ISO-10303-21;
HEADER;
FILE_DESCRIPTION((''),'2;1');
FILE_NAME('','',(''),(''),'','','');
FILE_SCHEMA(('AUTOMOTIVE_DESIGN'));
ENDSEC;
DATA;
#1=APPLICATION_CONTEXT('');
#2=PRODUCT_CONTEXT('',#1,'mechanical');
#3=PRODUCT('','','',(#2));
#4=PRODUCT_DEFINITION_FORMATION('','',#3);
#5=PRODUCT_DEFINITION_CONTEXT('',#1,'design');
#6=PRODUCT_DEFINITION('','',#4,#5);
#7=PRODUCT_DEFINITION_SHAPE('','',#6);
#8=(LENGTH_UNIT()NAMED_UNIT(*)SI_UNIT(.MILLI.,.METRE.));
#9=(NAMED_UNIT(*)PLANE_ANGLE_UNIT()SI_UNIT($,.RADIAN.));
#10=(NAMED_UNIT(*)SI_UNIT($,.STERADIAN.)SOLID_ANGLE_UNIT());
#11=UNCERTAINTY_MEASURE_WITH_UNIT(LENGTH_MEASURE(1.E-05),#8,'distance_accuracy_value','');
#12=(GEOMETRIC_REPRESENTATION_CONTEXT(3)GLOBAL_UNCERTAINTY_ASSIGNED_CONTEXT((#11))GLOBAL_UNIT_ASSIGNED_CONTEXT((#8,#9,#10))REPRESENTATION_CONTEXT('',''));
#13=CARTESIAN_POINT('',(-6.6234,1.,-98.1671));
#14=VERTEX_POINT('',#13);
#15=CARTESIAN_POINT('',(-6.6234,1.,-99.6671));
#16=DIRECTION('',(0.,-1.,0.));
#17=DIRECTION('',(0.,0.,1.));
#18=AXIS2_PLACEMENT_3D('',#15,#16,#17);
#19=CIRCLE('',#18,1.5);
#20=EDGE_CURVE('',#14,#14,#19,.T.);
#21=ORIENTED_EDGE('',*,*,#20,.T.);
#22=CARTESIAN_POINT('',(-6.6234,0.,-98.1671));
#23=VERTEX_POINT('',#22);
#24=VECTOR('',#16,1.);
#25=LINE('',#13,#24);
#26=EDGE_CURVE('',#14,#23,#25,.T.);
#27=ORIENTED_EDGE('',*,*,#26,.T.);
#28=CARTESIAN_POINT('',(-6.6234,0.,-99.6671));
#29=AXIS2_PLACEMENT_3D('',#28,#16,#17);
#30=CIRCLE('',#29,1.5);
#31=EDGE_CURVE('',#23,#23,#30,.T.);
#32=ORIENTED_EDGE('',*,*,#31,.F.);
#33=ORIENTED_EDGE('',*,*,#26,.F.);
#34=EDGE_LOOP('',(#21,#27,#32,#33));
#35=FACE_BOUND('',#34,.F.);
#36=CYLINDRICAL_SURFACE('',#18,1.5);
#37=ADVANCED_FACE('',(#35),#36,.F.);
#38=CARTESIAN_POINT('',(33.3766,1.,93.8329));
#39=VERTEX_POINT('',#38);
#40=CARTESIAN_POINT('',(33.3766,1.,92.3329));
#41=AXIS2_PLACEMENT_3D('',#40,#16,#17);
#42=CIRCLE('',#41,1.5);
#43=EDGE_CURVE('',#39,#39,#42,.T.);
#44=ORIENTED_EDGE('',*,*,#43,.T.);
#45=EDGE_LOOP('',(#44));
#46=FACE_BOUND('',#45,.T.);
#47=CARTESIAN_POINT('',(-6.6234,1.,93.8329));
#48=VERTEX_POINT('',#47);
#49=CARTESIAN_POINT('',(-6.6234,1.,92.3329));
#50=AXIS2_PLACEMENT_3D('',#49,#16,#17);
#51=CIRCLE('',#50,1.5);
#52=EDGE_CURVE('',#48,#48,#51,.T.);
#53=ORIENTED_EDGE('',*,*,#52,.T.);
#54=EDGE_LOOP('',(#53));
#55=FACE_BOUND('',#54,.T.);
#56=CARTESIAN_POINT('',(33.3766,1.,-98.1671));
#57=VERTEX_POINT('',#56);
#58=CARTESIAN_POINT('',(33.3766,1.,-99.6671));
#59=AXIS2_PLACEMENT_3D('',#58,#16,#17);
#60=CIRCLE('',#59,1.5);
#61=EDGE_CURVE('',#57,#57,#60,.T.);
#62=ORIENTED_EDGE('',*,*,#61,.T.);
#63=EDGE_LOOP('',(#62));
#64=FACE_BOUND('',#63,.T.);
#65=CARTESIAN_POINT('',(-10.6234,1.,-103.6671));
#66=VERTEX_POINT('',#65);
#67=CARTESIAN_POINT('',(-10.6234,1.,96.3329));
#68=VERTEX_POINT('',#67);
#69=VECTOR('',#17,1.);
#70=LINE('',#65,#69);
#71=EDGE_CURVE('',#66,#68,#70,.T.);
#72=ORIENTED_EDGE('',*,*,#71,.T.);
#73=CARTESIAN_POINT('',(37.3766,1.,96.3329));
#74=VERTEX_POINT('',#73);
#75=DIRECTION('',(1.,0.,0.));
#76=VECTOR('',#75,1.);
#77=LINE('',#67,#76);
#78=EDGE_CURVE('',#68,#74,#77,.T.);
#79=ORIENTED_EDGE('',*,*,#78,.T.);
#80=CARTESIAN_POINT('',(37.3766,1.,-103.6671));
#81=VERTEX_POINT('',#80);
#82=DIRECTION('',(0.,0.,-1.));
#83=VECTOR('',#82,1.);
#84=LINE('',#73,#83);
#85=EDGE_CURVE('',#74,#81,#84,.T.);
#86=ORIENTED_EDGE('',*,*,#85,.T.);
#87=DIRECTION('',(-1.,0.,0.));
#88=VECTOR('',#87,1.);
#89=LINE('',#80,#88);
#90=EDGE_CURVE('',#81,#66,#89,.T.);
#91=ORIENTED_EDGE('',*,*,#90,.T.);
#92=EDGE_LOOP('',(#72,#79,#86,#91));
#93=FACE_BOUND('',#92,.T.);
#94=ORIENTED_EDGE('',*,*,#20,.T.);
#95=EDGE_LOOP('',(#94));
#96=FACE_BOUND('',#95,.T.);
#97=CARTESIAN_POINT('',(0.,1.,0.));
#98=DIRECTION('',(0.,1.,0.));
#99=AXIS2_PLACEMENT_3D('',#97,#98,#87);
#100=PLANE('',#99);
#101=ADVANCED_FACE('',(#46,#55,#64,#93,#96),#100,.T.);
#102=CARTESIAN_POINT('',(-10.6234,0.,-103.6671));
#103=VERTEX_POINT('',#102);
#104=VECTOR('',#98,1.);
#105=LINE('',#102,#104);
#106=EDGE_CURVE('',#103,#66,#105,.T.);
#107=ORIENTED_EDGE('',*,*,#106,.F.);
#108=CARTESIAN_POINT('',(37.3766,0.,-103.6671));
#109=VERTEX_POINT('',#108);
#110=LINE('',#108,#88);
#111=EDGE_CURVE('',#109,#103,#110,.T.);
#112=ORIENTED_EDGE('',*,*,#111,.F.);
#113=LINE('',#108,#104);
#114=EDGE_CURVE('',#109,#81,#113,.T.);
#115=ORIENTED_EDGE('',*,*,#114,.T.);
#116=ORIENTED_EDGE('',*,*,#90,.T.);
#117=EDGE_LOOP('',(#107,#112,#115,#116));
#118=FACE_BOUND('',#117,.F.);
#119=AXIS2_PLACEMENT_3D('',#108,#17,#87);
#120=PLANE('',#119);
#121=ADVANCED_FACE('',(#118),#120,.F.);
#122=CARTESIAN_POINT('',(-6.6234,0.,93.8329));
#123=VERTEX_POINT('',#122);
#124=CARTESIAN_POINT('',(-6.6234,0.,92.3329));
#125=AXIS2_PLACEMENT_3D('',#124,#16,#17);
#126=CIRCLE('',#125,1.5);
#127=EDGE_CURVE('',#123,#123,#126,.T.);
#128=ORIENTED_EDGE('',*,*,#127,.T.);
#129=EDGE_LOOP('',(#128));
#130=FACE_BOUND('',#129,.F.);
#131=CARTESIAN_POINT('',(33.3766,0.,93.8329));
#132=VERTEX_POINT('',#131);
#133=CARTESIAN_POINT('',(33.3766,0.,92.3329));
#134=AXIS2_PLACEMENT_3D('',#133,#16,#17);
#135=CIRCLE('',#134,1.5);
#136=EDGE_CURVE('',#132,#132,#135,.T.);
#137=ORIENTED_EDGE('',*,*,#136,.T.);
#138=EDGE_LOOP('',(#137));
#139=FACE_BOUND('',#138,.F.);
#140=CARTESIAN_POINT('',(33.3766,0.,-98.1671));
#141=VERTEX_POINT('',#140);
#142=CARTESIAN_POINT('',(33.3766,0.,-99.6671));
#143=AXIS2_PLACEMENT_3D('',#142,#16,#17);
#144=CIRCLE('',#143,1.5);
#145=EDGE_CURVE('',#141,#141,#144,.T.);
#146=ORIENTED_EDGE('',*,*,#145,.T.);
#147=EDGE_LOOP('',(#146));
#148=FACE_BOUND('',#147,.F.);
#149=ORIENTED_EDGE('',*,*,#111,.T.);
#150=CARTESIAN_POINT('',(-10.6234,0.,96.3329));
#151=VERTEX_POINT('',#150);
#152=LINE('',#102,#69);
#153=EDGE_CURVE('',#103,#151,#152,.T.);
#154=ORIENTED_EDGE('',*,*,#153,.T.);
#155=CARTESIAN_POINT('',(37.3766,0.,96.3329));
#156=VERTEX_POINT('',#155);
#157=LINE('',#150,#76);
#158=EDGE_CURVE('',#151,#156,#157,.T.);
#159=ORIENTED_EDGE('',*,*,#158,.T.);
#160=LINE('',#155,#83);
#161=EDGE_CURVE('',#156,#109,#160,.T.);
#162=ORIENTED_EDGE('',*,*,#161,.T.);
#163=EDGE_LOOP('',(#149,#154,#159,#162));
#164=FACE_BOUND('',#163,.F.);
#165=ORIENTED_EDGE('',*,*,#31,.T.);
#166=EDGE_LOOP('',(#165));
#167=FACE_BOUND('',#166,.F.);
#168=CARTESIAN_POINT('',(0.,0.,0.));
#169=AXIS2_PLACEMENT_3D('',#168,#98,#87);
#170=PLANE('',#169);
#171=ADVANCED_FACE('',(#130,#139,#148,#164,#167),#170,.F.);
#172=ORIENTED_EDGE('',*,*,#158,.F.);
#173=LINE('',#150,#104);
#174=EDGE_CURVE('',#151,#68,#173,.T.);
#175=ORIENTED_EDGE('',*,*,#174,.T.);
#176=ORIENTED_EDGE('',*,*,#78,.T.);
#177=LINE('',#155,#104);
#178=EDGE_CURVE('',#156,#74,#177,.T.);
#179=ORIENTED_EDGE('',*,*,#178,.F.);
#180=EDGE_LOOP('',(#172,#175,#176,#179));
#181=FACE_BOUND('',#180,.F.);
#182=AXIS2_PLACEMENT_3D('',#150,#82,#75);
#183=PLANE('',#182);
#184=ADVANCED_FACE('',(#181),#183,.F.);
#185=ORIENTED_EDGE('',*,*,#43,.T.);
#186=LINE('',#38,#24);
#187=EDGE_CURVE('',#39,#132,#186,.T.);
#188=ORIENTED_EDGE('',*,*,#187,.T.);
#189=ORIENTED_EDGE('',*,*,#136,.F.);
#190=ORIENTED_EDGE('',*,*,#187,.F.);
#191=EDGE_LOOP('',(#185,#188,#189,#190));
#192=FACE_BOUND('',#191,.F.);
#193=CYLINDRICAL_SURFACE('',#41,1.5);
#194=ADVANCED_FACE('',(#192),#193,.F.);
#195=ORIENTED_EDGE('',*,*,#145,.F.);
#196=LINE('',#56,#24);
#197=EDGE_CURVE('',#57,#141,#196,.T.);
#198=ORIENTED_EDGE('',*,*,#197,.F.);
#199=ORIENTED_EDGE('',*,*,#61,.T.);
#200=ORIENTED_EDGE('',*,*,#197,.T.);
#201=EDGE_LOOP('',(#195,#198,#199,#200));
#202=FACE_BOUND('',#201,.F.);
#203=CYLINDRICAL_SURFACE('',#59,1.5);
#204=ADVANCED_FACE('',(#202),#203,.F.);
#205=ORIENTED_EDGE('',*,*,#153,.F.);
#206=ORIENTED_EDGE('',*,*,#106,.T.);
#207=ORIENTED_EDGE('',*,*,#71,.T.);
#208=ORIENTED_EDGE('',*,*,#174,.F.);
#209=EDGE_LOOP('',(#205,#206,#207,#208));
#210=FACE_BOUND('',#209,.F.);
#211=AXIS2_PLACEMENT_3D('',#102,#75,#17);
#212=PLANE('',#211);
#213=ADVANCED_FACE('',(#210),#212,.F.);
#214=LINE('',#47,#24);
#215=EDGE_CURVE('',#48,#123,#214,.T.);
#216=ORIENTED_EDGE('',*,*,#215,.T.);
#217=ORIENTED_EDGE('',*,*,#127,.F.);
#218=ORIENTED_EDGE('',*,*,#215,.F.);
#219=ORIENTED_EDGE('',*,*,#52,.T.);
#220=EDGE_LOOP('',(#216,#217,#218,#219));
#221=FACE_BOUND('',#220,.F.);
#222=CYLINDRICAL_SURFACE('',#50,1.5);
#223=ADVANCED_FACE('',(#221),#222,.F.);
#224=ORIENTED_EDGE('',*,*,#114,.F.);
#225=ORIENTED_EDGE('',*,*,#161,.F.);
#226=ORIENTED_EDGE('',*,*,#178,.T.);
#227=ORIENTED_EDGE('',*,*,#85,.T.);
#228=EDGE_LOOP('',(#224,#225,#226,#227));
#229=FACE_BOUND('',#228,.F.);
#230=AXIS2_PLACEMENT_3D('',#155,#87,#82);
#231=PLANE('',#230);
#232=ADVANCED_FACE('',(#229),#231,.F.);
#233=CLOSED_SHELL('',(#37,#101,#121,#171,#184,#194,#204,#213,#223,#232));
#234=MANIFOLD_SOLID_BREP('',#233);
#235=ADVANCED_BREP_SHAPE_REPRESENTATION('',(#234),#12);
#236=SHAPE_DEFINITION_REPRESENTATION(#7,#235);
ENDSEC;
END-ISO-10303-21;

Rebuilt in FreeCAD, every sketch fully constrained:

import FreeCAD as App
import Part
import Sketcher

V = App.Vector

doc = App.newDocument("Part")
body = doc.addObject("PartDesign::Body", "Body")

# Sketch on XZ plane
sketch1 = doc.addObject("Sketcher::SketchObject", "Sketch")
body.addObject(sketch1)
sketch1.AttachmentSupport = (doc.XZ_Plane, [""])
sketch1.MapMode = "FlatFace"
sketch1.addGeometry([
    Part.LineSegment(V(-10.6234, -103.6671, 0), V(-10.6234, 96.3329, 0)),
    Part.LineSegment(V(-10.6234, 96.3329, 0), V(37.3766, 96.3329, 0)),
    Part.LineSegment(V(37.3766, 96.3329, 0), V(37.3766, -103.6671, 0)),
    Part.LineSegment(V(37.3766, -103.6671, 0), V(-10.6234, -103.6671, 0)),
], False)
sketch1.addConstraint([
    Sketcher.Constraint("Coincident", 0, 2, 1, 1),
    Sketcher.Constraint("Coincident", 1, 2, 2, 1),
    Sketcher.Constraint("Coincident", 2, 2, 3, 1),
    Sketcher.Constraint("Coincident", 3, 2, 0, 1),
    Sketcher.Constraint("Vertical", 0),
    Sketcher.Constraint("Horizontal", 1),
    Sketcher.Constraint("Vertical", 2),
    Sketcher.Constraint("Horizontal", 3),
    Sketcher.Constraint("DistanceX", 1, 1, 1, 2, 48.0),
    Sketcher.Constraint("DistanceY", 0, 1, 0, 2, 200.0),
    Sketcher.Constraint("DistanceY", -1, 1, 0, 2, 96.333),
    Sketcher.Constraint("DistanceX", 0, 2, -1, 1, 10.6234),
])
pad1 = doc.addObject("PartDesign::Pad", "Pad")
body.addObject(pad1)
pad1.Profile = sketch1
pad1.Length = 1
pad1.Reversed = True

# Sketch on XZ plane
sketch2 = doc.addObject("Sketcher::SketchObject", "Sketch001")
body.addObject(sketch2)
sketch2.AttachmentSupport = (doc.XZ_Plane, [""])
sketch2.MapMode = "FlatFace"
sketch2.AttachmentOffset = App.Placement(V(0, 0, -1), App.Rotation())
sketch2.addGeometry([
    Part.Circle(V(-6.6234, 92.3329, 0), V(0, 0, 1), 1.5),
    Part.Circle(V(33.3766, 92.3329, 0), V(0, 0, 1), 1.5),
    Part.Circle(V(33.3766, -99.6671, 0), V(0, 0, 1), 1.5),
    Part.Circle(V(-6.6234, -99.6671, 0), V(0, 0, 1), 1.5),
], False)
sketch2.addConstraint([
    Sketcher.Constraint("Equal", 0, 1),
    Sketcher.Constraint("Equal", 1, 2),
    Sketcher.Constraint("Equal", 2, 3),
    Sketcher.Constraint("Horizontal", 0, 3, 1, 3),
    Sketcher.Constraint("Horizontal", 2, 3, 3, 3),
    Sketcher.Constraint("Vertical", 1, 3, 2, 3),
    Sketcher.Constraint("Vertical", 0, 3, 3, 3),
    Sketcher.Constraint("Diameter", 0, 3.0),
    Sketcher.Constraint("DistanceX", 0, 3, 1, 3, 40.0),
    Sketcher.Constraint("DistanceY", 2, 3, 1, 3, 192.0),
    Sketcher.Constraint("DistanceY", -1, 1, 0, 3, 92.333),
    Sketcher.Constraint("DistanceX", 0, 3, -1, 1, 6.6234),
])
doc.recompute()
hole = doc.addObject("PartDesign::Hole", "Hole")
body.addObject(hole)
hole.Profile = sketch2
hole.ThreadType = "None"
hole.Diameter = 3
hole.DepthType = "Dimension"
hole.Depth = 25.4
hole.DrillPoint = "Angled"
hole.DrillPointAngle = 118.188
hole.Reversed = True

doc.recompute()
